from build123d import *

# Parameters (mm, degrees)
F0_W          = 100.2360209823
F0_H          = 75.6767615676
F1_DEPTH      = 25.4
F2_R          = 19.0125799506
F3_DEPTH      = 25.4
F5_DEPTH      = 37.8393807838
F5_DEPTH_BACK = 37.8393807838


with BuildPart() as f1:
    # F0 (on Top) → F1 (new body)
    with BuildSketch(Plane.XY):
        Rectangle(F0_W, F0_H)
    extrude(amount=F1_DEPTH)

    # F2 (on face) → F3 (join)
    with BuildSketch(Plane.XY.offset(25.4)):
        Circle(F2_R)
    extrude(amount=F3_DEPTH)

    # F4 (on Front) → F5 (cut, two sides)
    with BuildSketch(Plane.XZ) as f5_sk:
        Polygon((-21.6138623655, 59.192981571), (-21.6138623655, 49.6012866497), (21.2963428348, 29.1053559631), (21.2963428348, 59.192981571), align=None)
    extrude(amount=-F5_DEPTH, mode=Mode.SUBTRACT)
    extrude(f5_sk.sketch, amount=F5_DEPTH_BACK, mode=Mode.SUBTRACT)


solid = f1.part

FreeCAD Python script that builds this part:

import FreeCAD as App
import Part
import Sketcher
Q = App.Units.Quantity

doc = App.newDocument("Part")
params = doc.addObject("Spreadsheet::Sheet", "Params")
for row, (alias, value) in enumerate([
    ("pad1_length", "1 in"),
    ("pad2_length", "1 in"),
], start=1):
    params.set(f"A{row}", alias)
    params.set(f"B{row}", "=" + value)
    params.setAlias(f"B{row}", alias)

body = doc.addObject("PartDesign::Body", "Body")

# Sketch on XY plane
sketch1 = doc.addObject("Sketcher::SketchObject", "Sketch")
body.addObject(sketch1)
sketch1.AttachmentSupport = (doc.XY_Plane, [""])
sketch1.MapMode = "FlatFace"
sketch1.addGeometry([
    Part.LineSegment(App.Vector(-50, 38, 0), App.Vector(-50, -38, 0)),
    Part.LineSegment(App.Vector(-50, -38, 0), App.Vector(50, -38, 0)),
    Part.LineSegment(App.Vector(50, -38, 0), App.Vector(50, 38, 0)),
    Part.LineSegment(App.Vector(50, 38, 0), App.Vector(-50, 38, 0)),
], False)
sketch1.addConstraint([
    Sketcher.Constraint("Coincident", 0, 2, 1, 1),
    Sketcher.Constraint("Coincident", 1, 2, 2, 1),
    Sketcher.Constraint("Coincident", 2, 2, 3, 1),
    Sketcher.Constraint("Coincident", 3, 2, 0, 1),
    Sketcher.Constraint("Vertical", 0),
    Sketcher.Constraint("Horizontal", 1),
    Sketcher.Constraint("Vertical", 2),
    Sketcher.Constraint("Horizontal", 3),
    Sketcher.Constraint("Symmetric", 0, 2, 2, 2, -1, 1),
    Sketcher.Constraint("DistanceX", 1, 1, 1, 2, Q("3.9463 in")),
    Sketcher.Constraint("DistanceY", 0, 2, 0, 1, Q("2.9794001 in")),
])
pad1 = doc.addObject("PartDesign::Pad", "Pad")
body.addObject(pad1)
pad1.Profile = sketch1
pad1.setExpression("Length", "Params.pad1_length")

# Sketch on XY plane
sketch2 = doc.addObject("Sketcher::SketchObject", "Sketch001")
body.addObject(sketch2)
sketch2.AttachmentSupport = (doc.XY_Plane, [""])
sketch2.MapMode = "FlatFace"
sketch2.AttachmentOffset = App.Placement(App.Vector(0, 0, 1 * 25.4), App.Rotation())
sketch2.addGeometry(Part.Circle(App.Vector(0, 0, 0), App.Vector(0, 0, 1), 19), False)
sketch2.addConstraint([
    Sketcher.Constraint("Coincident", 0, 3, -1, 1),
    Sketcher.Constraint("Diameter", 0, 38.02516),
])
pad2 = doc.addObject("PartDesign::Pad", "Pad001")
body.addObject(pad2)
pad2.Profile = sketch2
pad2.setExpression("Length", "Params.pad2_length")

# Sketch on XZ plane
sketch3 = doc.addObject("Sketcher::SketchObject", "Sketch002")
body.addObject(sketch3)
sketch3.AttachmentSupport = (doc.XZ_Plane, [""])
sketch3.MapMode = "FlatFace"
sketch3.addGeometry([
    Part.LineSegment(App.Vector(-22, 59, 0), App.Vector(-22, 50, 0)),
    Part.LineSegment(App.Vector(-22, 50, 0), App.Vector(21, 29, 0)),
    Part.LineSegment(App.Vector(21, 29, 0), App.Vector(21, 59, 0)),
    Part.LineSegment(App.Vector(21, 59, 0), App.Vector(-22, 59, 0)),
], False)
sketch3.addConstraint([
    Sketcher.Constraint("Coincident", 0, 2, 1, 1),
    Sketcher.Constraint("Coincident", 1, 2, 2, 1),
    Sketcher.Constraint("Coincident", 2, 2, 3, 1),
    Sketcher.Constraint("Coincident", 3, 2, 0, 1),
    Sketcher.Constraint("Vertical", 0),
    Sketcher.Constraint("Vertical", 2),
    Sketcher.Constraint("Horizontal", 3),
    Sketcher.Constraint("DistanceX", 3, 2, 3, 1, 42.910205),
    Sketcher.Constraint("DistanceY", 0, 2, 0, 1, 9.591695),
    Sketcher.Constraint("DistanceY", 2, 1, 2, 2, 30.087626),
    Sketcher.Constraint("DistanceY", -1, 1, 2, 2, 59.192982),
    Sketcher.Constraint("DistanceX", 0, 2, -1, 1, 21.613862),
])
pocket1 = doc.addObject("PartDesign::Pocket", "Pocket")
body.addObject(pocket1)
pocket1.Profile = sketch3
pocket1.Type = "ThroughAll"
pocket1.Midplane = True

doc.recompute()
